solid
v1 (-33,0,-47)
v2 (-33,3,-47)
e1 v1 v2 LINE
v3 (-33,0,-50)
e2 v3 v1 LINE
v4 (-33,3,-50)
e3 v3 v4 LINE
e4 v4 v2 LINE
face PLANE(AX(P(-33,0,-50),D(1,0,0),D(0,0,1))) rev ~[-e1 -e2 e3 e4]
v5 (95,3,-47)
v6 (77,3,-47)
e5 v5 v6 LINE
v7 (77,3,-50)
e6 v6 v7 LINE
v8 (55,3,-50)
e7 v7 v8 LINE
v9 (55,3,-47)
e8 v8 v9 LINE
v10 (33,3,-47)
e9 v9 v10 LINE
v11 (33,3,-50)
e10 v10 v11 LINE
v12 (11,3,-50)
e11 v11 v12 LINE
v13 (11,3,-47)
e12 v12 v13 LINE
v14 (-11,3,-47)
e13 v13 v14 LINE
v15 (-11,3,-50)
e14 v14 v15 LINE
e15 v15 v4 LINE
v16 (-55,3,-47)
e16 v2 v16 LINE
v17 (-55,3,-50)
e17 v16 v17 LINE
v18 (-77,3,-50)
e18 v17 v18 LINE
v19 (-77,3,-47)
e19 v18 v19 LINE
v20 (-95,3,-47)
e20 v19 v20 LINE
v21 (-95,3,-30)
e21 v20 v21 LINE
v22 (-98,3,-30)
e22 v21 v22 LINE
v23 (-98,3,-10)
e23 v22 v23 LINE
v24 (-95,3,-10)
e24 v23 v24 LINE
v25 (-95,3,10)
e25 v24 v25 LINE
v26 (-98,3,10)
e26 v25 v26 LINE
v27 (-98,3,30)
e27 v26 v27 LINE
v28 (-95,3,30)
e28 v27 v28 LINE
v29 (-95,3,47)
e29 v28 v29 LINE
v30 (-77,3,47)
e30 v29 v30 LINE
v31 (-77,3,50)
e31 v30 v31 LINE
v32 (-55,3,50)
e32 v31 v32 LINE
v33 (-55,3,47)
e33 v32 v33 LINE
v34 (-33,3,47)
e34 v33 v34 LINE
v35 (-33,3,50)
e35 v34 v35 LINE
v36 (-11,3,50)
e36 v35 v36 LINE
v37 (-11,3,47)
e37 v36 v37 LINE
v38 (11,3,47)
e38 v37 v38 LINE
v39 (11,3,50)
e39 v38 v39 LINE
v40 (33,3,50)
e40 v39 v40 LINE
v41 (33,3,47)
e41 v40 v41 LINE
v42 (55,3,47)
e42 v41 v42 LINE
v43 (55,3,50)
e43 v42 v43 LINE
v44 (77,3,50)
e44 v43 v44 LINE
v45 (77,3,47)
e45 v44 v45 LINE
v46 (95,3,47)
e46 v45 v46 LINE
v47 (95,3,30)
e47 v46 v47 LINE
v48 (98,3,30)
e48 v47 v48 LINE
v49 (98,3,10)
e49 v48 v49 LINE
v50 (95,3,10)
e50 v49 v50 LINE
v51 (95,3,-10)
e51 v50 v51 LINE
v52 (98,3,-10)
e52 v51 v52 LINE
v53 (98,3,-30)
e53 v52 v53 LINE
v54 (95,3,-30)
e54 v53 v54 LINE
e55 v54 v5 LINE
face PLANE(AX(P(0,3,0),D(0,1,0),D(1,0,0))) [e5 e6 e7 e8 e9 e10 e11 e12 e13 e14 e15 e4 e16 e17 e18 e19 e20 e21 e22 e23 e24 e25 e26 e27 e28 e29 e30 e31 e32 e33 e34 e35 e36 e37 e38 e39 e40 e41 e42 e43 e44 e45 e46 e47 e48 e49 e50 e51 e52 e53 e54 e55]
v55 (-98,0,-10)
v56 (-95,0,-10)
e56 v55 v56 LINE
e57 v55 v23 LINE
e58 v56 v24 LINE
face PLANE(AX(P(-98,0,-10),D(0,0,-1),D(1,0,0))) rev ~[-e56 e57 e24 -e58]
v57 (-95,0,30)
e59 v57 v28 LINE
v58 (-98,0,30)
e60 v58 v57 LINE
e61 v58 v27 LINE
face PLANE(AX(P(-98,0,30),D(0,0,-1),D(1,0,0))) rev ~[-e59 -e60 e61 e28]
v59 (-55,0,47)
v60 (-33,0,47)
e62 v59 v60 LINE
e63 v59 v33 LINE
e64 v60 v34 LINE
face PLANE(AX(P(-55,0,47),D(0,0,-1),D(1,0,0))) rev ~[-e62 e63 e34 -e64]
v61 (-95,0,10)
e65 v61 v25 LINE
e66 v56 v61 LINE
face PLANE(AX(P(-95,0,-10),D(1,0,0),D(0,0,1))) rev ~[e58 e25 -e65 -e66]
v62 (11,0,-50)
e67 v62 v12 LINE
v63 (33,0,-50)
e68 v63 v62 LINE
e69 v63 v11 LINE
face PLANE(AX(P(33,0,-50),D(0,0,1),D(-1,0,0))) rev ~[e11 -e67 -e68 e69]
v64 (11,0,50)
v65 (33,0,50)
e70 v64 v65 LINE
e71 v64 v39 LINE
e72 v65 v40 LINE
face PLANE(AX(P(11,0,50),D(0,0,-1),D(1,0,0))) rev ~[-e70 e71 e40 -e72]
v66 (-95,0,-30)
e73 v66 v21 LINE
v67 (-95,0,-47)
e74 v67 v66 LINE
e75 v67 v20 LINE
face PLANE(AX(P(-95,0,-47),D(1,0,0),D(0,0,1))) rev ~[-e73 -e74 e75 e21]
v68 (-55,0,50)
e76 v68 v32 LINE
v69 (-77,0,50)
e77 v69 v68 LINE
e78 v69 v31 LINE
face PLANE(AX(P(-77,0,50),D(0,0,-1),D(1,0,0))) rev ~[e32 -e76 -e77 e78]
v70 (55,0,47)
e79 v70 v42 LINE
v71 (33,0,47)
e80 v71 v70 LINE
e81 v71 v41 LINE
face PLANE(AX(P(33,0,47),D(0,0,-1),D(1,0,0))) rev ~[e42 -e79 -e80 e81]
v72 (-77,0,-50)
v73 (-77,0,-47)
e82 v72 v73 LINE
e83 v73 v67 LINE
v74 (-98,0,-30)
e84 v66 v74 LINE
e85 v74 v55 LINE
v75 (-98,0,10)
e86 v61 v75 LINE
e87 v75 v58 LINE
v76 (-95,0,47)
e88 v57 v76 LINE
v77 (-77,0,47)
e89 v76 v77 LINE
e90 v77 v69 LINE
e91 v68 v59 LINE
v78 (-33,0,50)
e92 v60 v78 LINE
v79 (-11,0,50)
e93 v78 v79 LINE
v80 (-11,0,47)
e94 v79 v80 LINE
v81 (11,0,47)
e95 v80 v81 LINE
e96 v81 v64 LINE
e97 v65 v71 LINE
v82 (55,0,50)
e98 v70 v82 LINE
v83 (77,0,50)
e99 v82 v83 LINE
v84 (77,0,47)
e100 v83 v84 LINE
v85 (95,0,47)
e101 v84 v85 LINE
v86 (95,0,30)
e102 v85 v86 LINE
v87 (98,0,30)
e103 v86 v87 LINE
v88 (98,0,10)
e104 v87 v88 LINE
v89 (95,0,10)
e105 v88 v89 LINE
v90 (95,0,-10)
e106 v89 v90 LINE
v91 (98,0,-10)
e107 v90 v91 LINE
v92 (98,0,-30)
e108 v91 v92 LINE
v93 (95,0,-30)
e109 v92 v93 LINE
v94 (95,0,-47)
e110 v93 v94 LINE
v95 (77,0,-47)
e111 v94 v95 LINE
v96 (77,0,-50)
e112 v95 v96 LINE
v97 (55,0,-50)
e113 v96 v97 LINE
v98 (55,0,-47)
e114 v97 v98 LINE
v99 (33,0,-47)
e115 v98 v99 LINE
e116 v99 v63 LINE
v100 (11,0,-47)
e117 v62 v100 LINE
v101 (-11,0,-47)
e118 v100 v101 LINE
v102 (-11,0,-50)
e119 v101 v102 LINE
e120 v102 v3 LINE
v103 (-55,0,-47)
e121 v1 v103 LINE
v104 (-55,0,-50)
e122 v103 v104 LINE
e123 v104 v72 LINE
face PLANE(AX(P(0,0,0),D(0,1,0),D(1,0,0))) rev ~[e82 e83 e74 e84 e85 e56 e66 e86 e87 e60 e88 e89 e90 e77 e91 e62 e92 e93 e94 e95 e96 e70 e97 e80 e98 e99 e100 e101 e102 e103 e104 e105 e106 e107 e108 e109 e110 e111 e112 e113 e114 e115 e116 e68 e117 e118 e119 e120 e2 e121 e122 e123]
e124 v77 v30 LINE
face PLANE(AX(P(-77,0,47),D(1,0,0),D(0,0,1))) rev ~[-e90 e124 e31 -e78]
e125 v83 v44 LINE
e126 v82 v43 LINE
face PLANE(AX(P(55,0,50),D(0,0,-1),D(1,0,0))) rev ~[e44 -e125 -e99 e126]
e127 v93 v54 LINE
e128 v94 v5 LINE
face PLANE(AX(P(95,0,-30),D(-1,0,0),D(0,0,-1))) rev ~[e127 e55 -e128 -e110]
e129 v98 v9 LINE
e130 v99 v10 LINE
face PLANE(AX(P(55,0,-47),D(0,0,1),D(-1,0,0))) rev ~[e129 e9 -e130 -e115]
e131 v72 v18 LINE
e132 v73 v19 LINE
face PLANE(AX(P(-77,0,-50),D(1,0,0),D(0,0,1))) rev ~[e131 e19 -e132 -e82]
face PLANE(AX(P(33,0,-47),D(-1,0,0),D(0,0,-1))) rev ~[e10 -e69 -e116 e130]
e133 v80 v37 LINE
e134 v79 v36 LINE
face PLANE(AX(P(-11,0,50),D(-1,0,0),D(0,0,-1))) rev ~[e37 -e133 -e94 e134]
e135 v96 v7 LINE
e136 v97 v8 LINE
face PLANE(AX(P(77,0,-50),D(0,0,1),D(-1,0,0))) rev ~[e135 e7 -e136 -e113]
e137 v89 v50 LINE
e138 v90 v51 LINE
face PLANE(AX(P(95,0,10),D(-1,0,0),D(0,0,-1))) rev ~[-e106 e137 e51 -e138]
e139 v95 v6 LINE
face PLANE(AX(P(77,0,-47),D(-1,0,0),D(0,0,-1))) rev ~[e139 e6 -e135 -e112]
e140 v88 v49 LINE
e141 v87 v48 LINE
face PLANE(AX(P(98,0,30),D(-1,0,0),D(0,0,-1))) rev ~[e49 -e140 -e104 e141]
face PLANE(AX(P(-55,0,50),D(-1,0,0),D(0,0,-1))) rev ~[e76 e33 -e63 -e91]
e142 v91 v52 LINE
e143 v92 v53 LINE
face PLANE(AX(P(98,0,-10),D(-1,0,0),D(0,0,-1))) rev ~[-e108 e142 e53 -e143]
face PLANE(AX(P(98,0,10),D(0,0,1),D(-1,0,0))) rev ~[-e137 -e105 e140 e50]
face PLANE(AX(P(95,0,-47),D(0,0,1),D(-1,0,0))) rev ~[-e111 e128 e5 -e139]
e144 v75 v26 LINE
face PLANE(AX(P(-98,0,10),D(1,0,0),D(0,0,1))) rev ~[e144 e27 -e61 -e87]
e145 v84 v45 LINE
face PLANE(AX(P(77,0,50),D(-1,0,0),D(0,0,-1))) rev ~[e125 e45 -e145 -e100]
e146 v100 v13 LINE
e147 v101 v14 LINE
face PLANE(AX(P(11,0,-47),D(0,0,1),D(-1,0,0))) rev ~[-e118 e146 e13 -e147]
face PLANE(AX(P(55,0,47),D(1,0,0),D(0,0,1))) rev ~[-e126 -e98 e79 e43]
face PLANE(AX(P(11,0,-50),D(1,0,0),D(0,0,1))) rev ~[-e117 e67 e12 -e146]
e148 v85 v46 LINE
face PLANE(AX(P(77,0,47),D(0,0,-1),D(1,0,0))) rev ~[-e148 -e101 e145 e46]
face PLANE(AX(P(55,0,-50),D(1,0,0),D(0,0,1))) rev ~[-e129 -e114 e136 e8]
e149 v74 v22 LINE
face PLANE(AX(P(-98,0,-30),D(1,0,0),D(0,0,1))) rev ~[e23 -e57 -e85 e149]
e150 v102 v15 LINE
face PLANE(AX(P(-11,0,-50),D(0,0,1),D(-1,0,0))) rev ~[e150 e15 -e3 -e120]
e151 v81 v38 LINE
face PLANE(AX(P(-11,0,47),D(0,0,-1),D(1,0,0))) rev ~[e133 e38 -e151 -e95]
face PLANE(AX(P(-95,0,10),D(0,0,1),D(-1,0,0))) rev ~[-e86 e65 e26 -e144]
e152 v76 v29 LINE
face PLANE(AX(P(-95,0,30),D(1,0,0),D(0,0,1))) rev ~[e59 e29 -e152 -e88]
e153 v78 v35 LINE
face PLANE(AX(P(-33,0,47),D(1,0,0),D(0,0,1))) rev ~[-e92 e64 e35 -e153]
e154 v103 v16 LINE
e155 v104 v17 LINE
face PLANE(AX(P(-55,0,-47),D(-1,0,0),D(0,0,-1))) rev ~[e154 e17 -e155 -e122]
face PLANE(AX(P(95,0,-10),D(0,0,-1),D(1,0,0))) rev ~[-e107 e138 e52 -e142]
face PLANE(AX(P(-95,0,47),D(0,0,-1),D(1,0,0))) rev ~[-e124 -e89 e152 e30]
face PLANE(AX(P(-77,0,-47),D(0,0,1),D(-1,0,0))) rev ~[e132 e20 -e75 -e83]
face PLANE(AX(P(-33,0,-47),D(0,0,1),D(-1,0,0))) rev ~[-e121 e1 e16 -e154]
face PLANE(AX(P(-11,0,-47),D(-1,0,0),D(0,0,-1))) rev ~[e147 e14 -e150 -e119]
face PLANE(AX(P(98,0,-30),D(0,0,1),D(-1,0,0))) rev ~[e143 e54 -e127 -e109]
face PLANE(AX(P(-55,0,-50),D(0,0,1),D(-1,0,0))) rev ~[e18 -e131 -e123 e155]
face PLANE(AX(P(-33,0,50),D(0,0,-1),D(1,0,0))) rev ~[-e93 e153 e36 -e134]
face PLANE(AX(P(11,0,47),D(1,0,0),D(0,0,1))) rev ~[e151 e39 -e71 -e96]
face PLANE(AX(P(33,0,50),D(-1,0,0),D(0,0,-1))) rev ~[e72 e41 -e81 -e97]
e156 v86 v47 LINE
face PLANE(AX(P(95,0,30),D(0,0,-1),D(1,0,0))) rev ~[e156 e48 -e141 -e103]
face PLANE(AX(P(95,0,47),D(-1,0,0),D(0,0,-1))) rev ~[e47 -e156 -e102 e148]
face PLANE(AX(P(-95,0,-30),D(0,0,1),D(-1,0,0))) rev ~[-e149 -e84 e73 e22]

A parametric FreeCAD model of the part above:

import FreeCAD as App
import Part
import Sketcher
from FreeCAD import Vector
Q = App.Units.Quantity


def add_polygon(sketch, points):
    """Adds a closed chain of lines whose ends are joined by coincident constraints."""
    first, n = sketch.GeometryCount, len(points)
    for a, b in zip(points, points[1:] + points[:1]):
        sketch.addGeometry(Part.LineSegment(App.Vector(*a, 0), App.Vector(*b, 0)), False)
    for i in range(n):
        sketch.addConstraint(Sketcher.Constraint("Coincident", first + i, 2, first + (i + 1) % n, 1))

doc = App.newDocument("Part")
body = doc.addObject("PartDesign::Body", "Body")

sketch1 = body.newObject("Sketcher::SketchObject", "Sketch")
sketch1.AttachmentSupport = (doc.getObject("XZ_Plane"), [""])
sketch1.MapMode = "FlatFace"
add_polygon(sketch1, [(-77, 47), (-77, 50), (-55, 50), (-55, 47), (-33, 47), (-33, 50), (-11, 50), (-11, 47), (11, 47), (11, 50), (33, 50), (33, 47), (55, 47), (55, 50), (77, 50), (77, 47), (95, 47), (95, 30), (98, 30), (98, 10), (95, 10), (95, -10), (98, -10), (98, -30), (95, -30), (95, -47), (77, -47), (77, -50), (55, -50), (55, -47), (33, -47), (33, -50), (11, -50), (11, -47), (-11, -47), (-11, -50), (-33, -50), (-33, -47), (-55, -47), (-55, -50), (-77, -50), (-77, -47), (-95, -47), (-95, -30), (-98, -30), (-98, -10), (-95, -10), (-95, 10), (-98, 10), (-98, 30), (-95, 30), (-95, 47)])
sketch1.addConstraint(Sketcher.Constraint("Vertical", 0))
sketch1.addConstraint(Sketcher.Constraint("Horizontal", 1))
sketch1.addConstraint(Sketcher.Constraint("Vertical", 2))
sketch1.addConstraint(Sketcher.Constraint("Horizontal", 3))
sketch1.addConstraint(Sketcher.Constraint("Vertical", 4))
sketch1.addConstraint(Sketcher.Constraint("Horizontal", 5))
sketch1.addConstraint(Sketcher.Constraint("Vertical", 6))
sketch1.addConstraint(Sketcher.Constraint("Horizontal", 7))
sketch1.addConstraint(Sketcher.Constraint("Vertical", 8))
sketch1.addConstraint(Sketcher.Constraint("Horizontal", 9))
sketch1.addConstraint(Sketcher.Constraint("Vertical", 10))
sketch1.addConstraint(Sketcher.Constraint("Horizontal", 11))
sketch1.addConstraint(Sketcher.Constraint("Vertical", 12))
sketch1.addConstraint(Sketcher.Constraint("Horizontal", 13))
sketch1.addConstraint(Sketcher.Constraint("Vertical", 14))
sketch1.addConstraint(Sketcher.Constraint("Horizontal", 15))
sketch1.addConstraint(Sketcher.Constraint("Vertical", 16))
sketch1.addConstraint(Sketcher.Constraint("Horizontal", 17))
sketch1.addConstraint(Sketcher.Constraint("Vertical", 18))
sketch1.addConstraint(Sketcher.Constraint("Horizontal", 19))
sketch1.addConstraint(Sketcher.Constraint("Vertical", 20))
sketch1.addConstraint(Sketcher.Constraint("Horizontal", 21))
sketch1.addConstraint(Sketcher.Constraint("Vertical", 22))
sketch1.addConstraint(Sketcher.Constraint("Horizontal", 23))
sketch1.addConstraint(Sketcher.Constraint("Vertical", 24))
sketch1.addConstraint(Sketcher.Constraint("Horizontal", 25))
sketch1.addConstraint(Sketcher.Constraint("Vertical", 26))
sketch1.addConstraint(Sketcher.Constraint("Horizontal", 27))
sketch1.addConstraint(Sketcher.Constraint("Vertical", 28))
sketch1.addConstraint(Sketcher.Constraint("Horizontal", 29))
sketch1.addConstraint(Sketcher.Constraint("Vertical", 30))
sketch1.addConstraint(Sketcher.Constraint("Horizontal", 31))
sketch1.addConstraint(Sketcher.Constraint("Vertical", 32))
sketch1.addConstraint(Sketcher.Constraint("Horizontal", 33))
sketch1.addConstraint(Sketcher.Constraint("Vertical", 34))
sketch1.addConstraint(Sketcher.Constraint("Horizontal", 35))
sketch1.addConstraint(Sketcher.Constraint("Vertical", 36))
sketch1.addConstraint(Sketcher.Constraint("Horizontal", 37))
sketch1.addConstraint(Sketcher.Constraint("Vertical", 38))
sketch1.addConstraint(Sketcher.Constraint("Horizontal", 39))
sketch1.addConstraint(Sketcher.Constraint("Vertical", 40))
sketch1.addConstraint(Sketcher.Constraint("Horizontal", 41))
sketch1.addConstraint(Sketcher.Constraint("Vertical", 42))
sketch1.addConstraint(Sketcher.Constraint("Horizontal", 43))
sketch1.addConstraint(Sketcher.Constraint("Vertical", 44))
sketch1.addConstraint(Sketcher.Constraint("Horizontal", 45))
sketch1.addConstraint(Sketcher.Constraint("Vertical", 46))
sketch1.addConstraint(Sketcher.Constraint("Horizontal", 47))
sketch1.addConstraint(Sketcher.Constraint("Vertical", 48))
sketch1.addConstraint(Sketcher.Constraint("Horizontal", 49))
sketch1.addConstraint(Sketcher.Constraint("Vertical", 50))
sketch1.addConstraint(Sketcher.Constraint("Horizontal", 51))
sketch1.addConstraint(Sketcher.Constraint("Symmetric", 0, 2, 26, 2, -1, 1))
sketch1.addConstraint(Sketcher.Constraint("Symmetric", 2, 2, 28, 2, -1, 1))
sketch1.addConstraint(Sketcher.Constraint("Symmetric", 4, 2, 30, 2, -1, 1))
sketch1.addConstraint(Sketcher.Constraint("Symmetric", 6, 2, 32, 2, -1, 1))
sketch1.addConstraint(Sketcher.Constraint("Symmetric", 8, 2, 34, 2, -1, 1))
sketch1.addConstraint(Sketcher.Constraint("Symmetric", 10, 2, 36, 2, -1, 1))
sketch1.addConstraint(Sketcher.Constraint("Symmetric", 12, 2, 38, 2, -1, 1))
sketch1.addConstraint(Sketcher.Constraint("Symmetric", 14, 2, 40, 2, -1, 1))
sketch1.addConstraint(Sketcher.Constraint("Symmetric", 16, 2, 42, 2, -1, 1))
sketch1.addConstraint(Sketcher.Constraint("Symmetric", 18, 2, 44, 2, -1, 1))
sketch1.addConstraint(Sketcher.Constraint("Symmetric", 20, 2, 46, 2, -1, 1))
sketch1.addConstraint(Sketcher.Constraint("Symmetric", 22, 2, 48, 2, -1, 1))
sketch1.addConstraint(Sketcher.Constraint("Symmetric", 24, 2, 50, 2, -1, 1))
sketch1.addConstraint(Sketcher.Constraint("Symmetric", 5, 2, 8, 2, -2))
sketch1.addConstraint(Sketcher.Constraint("Symmetric", 3, 2, 10, 2, -2))
sketch1.addConstraint(Sketcher.Constraint("Symmetric", 1, 2, 12, 2, -2))
sketch1.addConstraint(Sketcher.Constraint("Symmetric", 25, 2, 40, 2, -2))
sketch1.addConstraint(Sketcher.Constraint("Symmetric", 23, 2, 42, 2, -2))
sketch1.addConstraint(Sketcher.Constraint("Symmetric", 21, 2, 44, 2, -2))
sketch1.addConstraint(Sketcher.Constraint("Horizontal", 1, 2, 4, 2))
sketch1.addConstraint(Sketcher.Constraint("Horizontal", 3, 2, 6, 2))
sketch1.addConstraint(Sketcher.Constraint("Horizontal", 11, 2, 14, 2))
sketch1.addConstraint(Sketcher.Constraint("Vertical", 16, 2, 19, 2))
sketch1.addConstraint(Sketcher.Constraint("Equal", 1, 3))
sketch1.addConstraint(Sketcher.Constraint("Equal", 3, 5))
sketch1.addConstraint(Sketcher.Constraint("Equal", 5, 7))
sketch1.addConstraint(Sketcher.Constraint("Equal", 49, 0))
sketch1.addConstraint(Sketcher.Constraint("Equal", 18, 20))
sketch1.addConstraint(Sketcher.Constraint("DistanceX", 1, 1, 1, 2, Q("22 mm")))
sketch1.addConstraint(Sketcher.Constraint("DistanceX", 15, 1, 15, 2, Q("18 mm")))
sketch1.addConstraint(Sketcher.Constraint("DistanceX", 17, 1, 17, 2, Q("3 mm")))
sketch1.addConstraint(Sketcher.Constraint("DistanceY", 16, 2, 16, 1, Q("17 mm")))
sketch1.addConstraint(Sketcher.Constraint("DistanceY", 18, 2, 18, 1, Q("20 mm")))
pad1 = body.newObject("PartDesign::Pad", "Pad")
pad1.Profile = sketch1
pad1.Length = 3
pad1.Reversed = True

doc.recompute()
